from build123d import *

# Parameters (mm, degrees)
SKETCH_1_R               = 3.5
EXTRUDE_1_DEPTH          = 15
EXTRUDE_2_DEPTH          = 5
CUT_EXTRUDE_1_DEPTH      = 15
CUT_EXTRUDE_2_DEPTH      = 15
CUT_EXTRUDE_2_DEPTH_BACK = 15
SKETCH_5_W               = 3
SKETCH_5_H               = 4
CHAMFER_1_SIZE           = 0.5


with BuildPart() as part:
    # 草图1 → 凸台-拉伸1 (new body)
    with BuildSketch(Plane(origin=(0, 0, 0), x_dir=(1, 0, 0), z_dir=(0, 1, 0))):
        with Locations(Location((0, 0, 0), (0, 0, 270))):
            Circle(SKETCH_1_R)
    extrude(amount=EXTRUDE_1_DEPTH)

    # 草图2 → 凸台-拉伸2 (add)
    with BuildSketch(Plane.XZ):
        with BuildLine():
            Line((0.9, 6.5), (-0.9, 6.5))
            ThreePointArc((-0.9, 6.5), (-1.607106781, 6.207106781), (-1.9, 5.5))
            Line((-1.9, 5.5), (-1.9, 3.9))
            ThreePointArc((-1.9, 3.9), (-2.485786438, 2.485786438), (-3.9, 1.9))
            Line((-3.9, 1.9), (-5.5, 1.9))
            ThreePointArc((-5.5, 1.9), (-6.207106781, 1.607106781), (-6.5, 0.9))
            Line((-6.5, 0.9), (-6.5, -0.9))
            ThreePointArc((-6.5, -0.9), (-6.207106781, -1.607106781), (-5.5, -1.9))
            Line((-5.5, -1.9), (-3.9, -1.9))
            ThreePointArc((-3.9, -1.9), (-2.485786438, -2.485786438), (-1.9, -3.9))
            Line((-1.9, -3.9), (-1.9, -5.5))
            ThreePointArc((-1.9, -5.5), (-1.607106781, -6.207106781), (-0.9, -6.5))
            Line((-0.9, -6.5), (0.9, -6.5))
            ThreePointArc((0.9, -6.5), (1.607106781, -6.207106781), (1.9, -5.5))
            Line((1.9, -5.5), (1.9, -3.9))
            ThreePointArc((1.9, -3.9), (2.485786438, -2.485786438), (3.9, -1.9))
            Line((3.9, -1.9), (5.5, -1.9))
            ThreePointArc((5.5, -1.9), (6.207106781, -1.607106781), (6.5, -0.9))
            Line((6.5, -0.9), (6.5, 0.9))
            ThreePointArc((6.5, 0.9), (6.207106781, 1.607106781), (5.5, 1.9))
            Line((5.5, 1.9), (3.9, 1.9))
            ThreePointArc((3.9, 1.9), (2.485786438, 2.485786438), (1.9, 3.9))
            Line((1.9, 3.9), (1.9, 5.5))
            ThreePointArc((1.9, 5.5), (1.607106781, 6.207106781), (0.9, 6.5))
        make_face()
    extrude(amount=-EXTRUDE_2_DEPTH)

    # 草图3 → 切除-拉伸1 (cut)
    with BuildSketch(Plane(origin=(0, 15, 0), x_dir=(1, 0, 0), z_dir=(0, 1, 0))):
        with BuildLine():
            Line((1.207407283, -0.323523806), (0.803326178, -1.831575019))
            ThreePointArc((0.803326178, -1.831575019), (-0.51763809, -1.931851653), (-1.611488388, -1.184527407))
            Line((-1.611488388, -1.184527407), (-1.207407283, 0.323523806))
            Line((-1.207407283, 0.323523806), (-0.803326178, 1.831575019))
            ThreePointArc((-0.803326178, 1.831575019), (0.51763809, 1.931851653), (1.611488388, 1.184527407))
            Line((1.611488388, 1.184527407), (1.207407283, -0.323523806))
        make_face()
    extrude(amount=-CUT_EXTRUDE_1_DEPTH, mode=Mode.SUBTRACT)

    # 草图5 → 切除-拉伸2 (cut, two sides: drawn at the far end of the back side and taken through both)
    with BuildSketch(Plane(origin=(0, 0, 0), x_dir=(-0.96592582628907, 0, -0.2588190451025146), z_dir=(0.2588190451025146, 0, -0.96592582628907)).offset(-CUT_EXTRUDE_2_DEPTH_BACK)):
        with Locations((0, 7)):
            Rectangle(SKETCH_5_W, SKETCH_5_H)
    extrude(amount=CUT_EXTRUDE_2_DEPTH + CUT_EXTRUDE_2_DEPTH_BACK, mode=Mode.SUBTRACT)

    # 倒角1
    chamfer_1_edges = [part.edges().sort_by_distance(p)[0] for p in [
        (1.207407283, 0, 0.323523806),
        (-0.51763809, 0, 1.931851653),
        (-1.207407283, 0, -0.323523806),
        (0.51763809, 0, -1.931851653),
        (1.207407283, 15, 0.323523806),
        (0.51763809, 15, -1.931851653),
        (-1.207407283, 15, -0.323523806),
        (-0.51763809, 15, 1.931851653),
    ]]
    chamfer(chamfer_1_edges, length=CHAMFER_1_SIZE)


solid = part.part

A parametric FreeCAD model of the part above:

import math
import FreeCAD as App
import Part
import Sketcher
Q = App.Units.Quantity


def edges_at(feature, points):
    """Names of the edges that pass closest to the given points."""
    edges = feature.Shape.Edges
    near = lambda p: min(range(len(edges)), key=lambda i: edges[i].distToShape(Part.Vertex(*p))[0])
    return sorted({f"Edge{near(p) + 1}" for p in points})


def add_polygon(sketch, points):
    """Adds a closed chain of lines whose ends are joined by coincident constraints."""
    first, n = sketch.GeometryCount, len(points)
    for a, b in zip(points, points[1:] + points[:1]):
        sketch.addGeometry(Part.LineSegment(App.Vector(*a, 0), App.Vector(*b, 0)), False)
    for i in range(n):
        sketch.addConstraint(Sketcher.Constraint("Coincident", first + i, 2, first + (i + 1) % n, 1))

doc = App.newDocument("Part")
body = doc.addObject("PartDesign::Body", "Body")

sketch1 = doc.addObject("Sketcher::SketchObject", "Sketch")
body.addObject(sketch1)
sketch1.AttachmentSupport = (doc.XZ_Plane, [""])
sketch1.MapMode = "FlatFace"
sketch1.addGeometry(Part.Circle(App.Vector(0, 0, 0), App.Vector(0, 0, 1), 3.5), False)
sketch1.addConstraint(Sketcher.Constraint("Coincident", 0, 3, -1, 1))
sketch1.addConstraint(Sketcher.Constraint("Diameter", 0, Q("7 mm")))
pad1 = doc.addObject("PartDesign::Pad", "Pad")
body.addObject(pad1)
pad1.Profile = sketch1
pad1.Length = 15
pad1.Reversed = True

sketch2 = doc.addObject("Sketcher::SketchObject", "Sketch001")
body.addObject(sketch2)
sketch2.AttachmentSupport = (doc.XZ_Plane, [""])
sketch2.MapMode = "FlatFace"
sketch2.addGeometry(Part.LineSegment(App.Vector(0.9, 6.5, 0), App.Vector(-0.9, 6.5, 0)), False)
sketch2.addGeometry(Part.ArcOfCircle(Part.Circle(App.Vector(-0.9, 5.5, 0), App.Vector(0, 0, 1), 1), math.radians(90), math.radians(180)), False)
sketch2.addGeometry(Part.LineSegment(App.Vector(-1.9, 5.5, 0), App.Vector(-1.9, 3.9, 0)), False)
sketch2.addGeometry(Part.ArcOfCircle(Part.Circle(App.Vector(-3.9, 3.9, 0), App.Vector(0, 0, 1), 2), math.radians(-90), math.radians(0)), False)
sketch2.addGeometry(Part.LineSegment(App.Vector(-3.9, 1.9, 0), App.Vector(-5.5, 1.9, 0)), False)
sketch2.addGeometry(Part.ArcOfCircle(Part.Circle(App.Vector(-5.5, 0.9, 0), App.Vector(0, 0, 1), 1), math.radians(90), math.radians(180)), False)
sketch2.addGeometry(Part.LineSegment(App.Vector(-6.5, 0.9, 0), App.Vector(-6.5, -0.9, 0)), False)
sketch2.addGeometry(Part.ArcOfCircle(Part.Circle(App.Vector(-5.5, -0.9, 0), App.Vector(0, 0, 1), 1), math.radians(-180), math.radians(-90)), False)
sketch2.addGeometry(Part.LineSegment(App.Vector(-5.5, -1.9, 0), App.Vector(-3.9, -1.9, 0)), False)
sketch2.addGeometry(Part.ArcOfCircle(Part.Circle(App.Vector(-3.9, -3.9, 0), App.Vector(0, 0, 1), 2), math.radians(0), math.radians(90)), False)
sketch2.addGeometry(Part.LineSegment(App.Vector(-1.9, -3.9, 0), App.Vector(-1.9, -5.5, 0)), False)
sketch2.addGeometry(Part.ArcOfCircle(Part.Circle(App.Vector(-0.9, -5.5, 0), App.Vector(0, 0, 1), 1), math.radians(-180), math.radians(-90)), False)
sketch2.addGeometry(Part.LineSegment(App.Vector(-0.9, -6.5, 0), App.Vector(0.9, -6.5, 0)), False)
sketch2.addGeometry(Part.ArcOfCircle(Part.Circle(App.Vector(0.9, -5.5, 0), App.Vector(0, 0, 1), 1), math.radians(-90), math.radians(0)), False)
sketch2.addGeometry(Part.LineSegment(App.Vector(1.9, -5.5, 0), App.Vector(1.9, -3.9, 0)), False)
sketch2.addGeometry(Part.ArcOfCircle(Part.Circle(App.Vector(3.9, -3.9, 0), App.Vector(0, 0, 1), 2), math.radians(90), math.radians(180)), False)
sketch2.addGeometry(Part.LineSegment(App.Vector(3.9, -1.9, 0), App.Vector(5.5, -1.9, 0)), False)
sketch2.addGeometry(Part.ArcOfCircle(Part.Circle(App.Vector(5.5, -0.9, 0), App.Vector(0, 0, 1), 1), math.radians(-90), math.radians(0)), False)
sketch2.addGeometry(Part.LineSegment(App.Vector(6.5, -0.9, 0), App.Vector(6.5, 0.9, 0)), False)
sketch2.addGeometry(Part.ArcOfCircle(Part.Circle(App.Vector(5.5, 0.9, 0), App.Vector(0, 0, 1), 1), math.radians(0), math.radians(90)), False)
sketch2.addGeometry(Part.LineSegment(App.Vector(5.5, 1.9, 0), App.Vector(3.9, 1.9, 0)), False)
sketch2.addGeometry(Part.ArcOfCircle(Part.Circle(App.Vector(3.9, 3.9, 0), App.Vector(0, 0, 1), 2), math.radians(-180), math.radians(-90)), False)
sketch2.addGeometry(Part.LineSegment(App.Vector(1.9, 3.9, 0), App.Vector(1.9, 5.5, 0)), False)
sketch2.addGeometry(Part.ArcOfCircle(Part.Circle(App.Vector(0.9, 5.5, 0), App.Vector(0, 0, 1), 1), math.radians(0), math.radians(90)), False)
sketch2.addConstraint(Sketcher.Constraint("Tangent", 0, 2, 1, 1))
sketch2.addConstraint(Sketcher.Constraint("Tangent", 1, 2, 2, 1))
sketch2.addConstraint(Sketcher.Constraint("Tangent", 2, 2, 3, 2))
sketch2.addConstraint(Sketcher.Constraint("Tangent", 3, 1, 4, 1))
sketch2.addConstraint(Sketcher.Constraint("Tangent", 4, 2, 5, 1))
sketch2.addConstraint(Sketcher.Constraint("Tangent", 5, 2, 6, 1))
sketch2.addConstraint(Sketcher.Constraint("Tangent", 6, 2, 7, 1))
sketch2.addConstraint(Sketcher.Constraint("Tangent", 7, 2, 8, 1))
sketch2.addConstraint(Sketcher.Constraint("Tangent", 8, 2, 9, 2))
sketch2.addConstraint(Sketcher.Constraint("Tangent", 9, 1, 10, 1))
sketch2.addConstraint(Sketcher.Constraint("Tangent", 10, 2, 11, 1))
sketch2.addConstraint(Sketcher.Constraint("Tangent", 11, 2, 12, 1))
sketch2.addConstraint(Sketcher.Constraint("Tangent", 12, 2, 13, 1))
sketch2.addConstraint(Sketcher.Constraint("Tangent", 13, 2, 14, 1))
sketch2.addConstraint(Sketcher.Constraint("Tangent", 14, 2, 15, 2))
sketch2.addConstraint(Sketcher.Constraint("Tangent", 15, 1, 16, 1))
sketch2.addConstraint(Sketcher.Constraint("Tangent", 16, 2, 17, 1))
sketch2.addConstraint(Sketcher.Constraint("Tangent", 17, 2, 18, 1))
sketch2.addConstraint(Sketcher.Constraint("Tangent", 18, 2, 19, 1))
sketch2.addConstraint(Sketcher.Constraint("Tangent", 19, 2, 20, 1))
sketch2.addConstraint(Sketcher.Constraint("Tangent", 20, 2, 21, 2))
sketch2.addConstraint(Sketcher.Constraint("Tangent", 21, 1, 22, 1))
sketch2.addConstraint(Sketcher.Constraint("Tangent", 22, 2, 23, 1))
sketch2.addConstraint(Sketcher.Constraint("Tangent", 23, 2, 0, 1))
sketch2.addConstraint(Sketcher.Constraint("Horizontal", 0))
sketch2.addConstraint(Sketcher.Constraint("Vertical", 2))
sketch2.addConstraint(Sketcher.Constraint("Horizontal", 4))
sketch2.addConstraint(Sketcher.Constraint("Vertical", 6))
sketch2.addConstraint(Sketcher.Constraint("Horizontal", 8))
sketch2.addConstraint(Sketcher.Constraint("Vertical", 10))
sketch2.addConstraint(Sketcher.Constraint("Horizontal", 12))
sketch2.addConstraint(Sketcher.Constraint("Vertical", 14))
sketch2.addConstraint(Sketcher.Constraint("Horizontal", 16))
sketch2.addConstraint(Sketcher.Constraint("Vertical", 18))
sketch2.addConstraint(Sketcher.Constraint("Horizontal", 20))
sketch2.addConstraint(Sketcher.Constraint("Vertical", 22))
sketch2.addConstraint(Sketcher.Constraint("Equal", 1, 5))
sketch2.addConstraint(Sketcher.Constraint("Equal", 5, 7))
sketch2.addConstraint(Sketcher.Constraint("Equal", 3, 9))
sketch2.addConstraint(Sketcher.Constraint("Equal", 7, 11))
sketch2.addConstraint(Sketcher.Constraint("Equal", 11, 13))
sketch2.addConstraint(Sketcher.Constraint("Equal", 9, 15))
sketch2.addConstraint(Sketcher.Constraint("Equal", 13, 17))
sketch2.addConstraint(Sketcher.Constraint("Equal", 17, 19))
sketch2.addConstraint(Sketcher.Constraint("Equal", 15, 21))
sketch2.addConstraint(Sketcher.Constraint("Equal", 19, 23))
sketch2.addConstraint(Sketcher.Constraint("Symmetric", 1, 3, 13, 3, -1, 1))
sketch2.addConstraint(Sketcher.Constraint("Symmetric", 5, 3, 17, 3, -1, 1))
sketch2.addConstraint(Sketcher.Constraint("Symmetric", 9, 3, 21, 3, -1, 1))
sketch2.addConstraint(Sketcher.Constraint("Symmetric", 9, 3, 15, 3, -2))
sketch2.addConstraint(Sketcher.Constraint("Equal", 20, 2))
sketch2.addConstraint(Sketcher.Constraint("Equal", 12, 6))
sketch2.addConstraint(Sketcher.Constraint("Radius", 1, Q("1 mm")))
sketch2.addConstraint(Sketcher.Constraint("Radius", 3, Q("2 mm")))
sketch2.addConstraint(Sketcher.Constraint("DistanceX", 0, 2, 0, 1, Q("1.8 mm")))
sketch2.addConstraint(Sketcher.Constraint("DistanceX", 4, 2, 4, 1, Q("1.6 mm")))
pad2 = doc.addObject("PartDesign::Pad", "Pad001")
body.addObject(pad2)
pad2.Profile = sketch2
pad2.Length = 5
pad2.Reversed = True

sketch3 = doc.addObject("Sketcher::SketchObject", "Sketch002")
body.addObject(sketch3)
sketch3.AttachmentSupport = (doc.XZ_Plane, [""])
sketch3.MapMode = "FlatFace"
sketch3.AttachmentOffset = App.Placement(App.Vector(0, 0, -15), App.Rotation())
sketch3.addGeometry(Part.ArcOfCircle(Part.Circle(App.Vector(0, 0, 0), App.Vector(0, 0, 1), 2), math.radians(66), math.radians(144)), False)
sketch3.addGeometry(Part.LineSegment(App.Vector(0.8, 1.8, 0), App.Vector(1.6, -1.2, 0)), False)
sketch3.addGeometry(Part.ArcOfCircle(Part.Circle(App.Vector(0, 0, 0), App.Vector(0, 0, 1), 2), math.radians(-114), math.radians(-36)), False)
sketch3.addGeometry(Part.LineSegment(App.Vector(-0.8, -1.8, 0), App.Vector(-1.6, 1.2, 0)), False)
sketch3.addConstraint(Sketcher.Constraint("Coincident", 0, 1, 1, 1))
sketch3.addConstraint(Sketcher.Constraint("Coincident", 1, 2, 2, 2))
sketch3.addConstraint(Sketcher.Constraint("Coincident", 2, 1, 3, 1))
sketch3.addConstraint(Sketcher.Constraint("Coincident", 3, 2, 0, 2))
sketch3.addConstraint(Sketcher.Constraint("Coincident", 0, 3, -1, 1))
sketch3.addConstraint(Sketcher.Constraint("Coincident", 2, 3, -1, 1))
sketch3.addConstraint(Sketcher.Constraint("Equal", 0, 2))
sketch3.addConstraint(Sketcher.Constraint("Parallel", 1, 3))
sketch3.addConstraint(Sketcher.Constraint("Equal", 1, 3))
sketch3.addConstraint(Sketcher.Constraint("Radius", 0, Q("2 mm")))
sketch3.addConstraint(Sketcher.Constraint("Angle", 1, Q("-75 deg")))
sketch3.addConstraint(Sketcher.Constraint("Distance", 1, Q("3.122499 mm")))
pocket1 = doc.addObject("PartDesign::Pocket", "Pocket")
body.addObject(pocket1)
pocket1.Profile = sketch3
pocket1.Length = 15
pocket1.Reversed = True

sketch4 = doc.addObject("Sketcher::SketchObject", "Sketch003")
body.addObject(sketch4)
sketch4.Placement = App.Placement(App.Vector(0, 0, 0), App.Rotation(App.Vector(-0.965925826, 0, -0.258819045), App.Vector(0, 0.999999999, 0), App.Vector(0.258819045, 0, -0.965925826), "ZXY"))
add_polygon(sketch4, [(-1.5, 9), (-1.5, 5), (1.5, 5), (1.5, 9)])
sketch4.addConstraint(Sketcher.Constraint("Vertical", 0))
sketch4.addConstraint(Sketcher.Constraint("Horizontal", 1))
sketch4.addConstraint(Sketcher.Constraint("Vertical", 2))
sketch4.addConstraint(Sketcher.Constraint("Horizontal", 3))
sketch4.addConstraint(Sketcher.Constraint("DistanceX", 1, 1, 1, 2, Q("3 mm")))
sketch4.addConstraint(Sketcher.Constraint("DistanceY", 0, 2, 0, 1, Q("4 mm")))
sketch4.addConstraint(Sketcher.Constraint("DistanceY", -1, 1, 0, 2, Q("5 mm")))
sketch4.addConstraint(Sketcher.Constraint("DistanceX", 0, 2, -1, 1, Q("1.5 mm")))
pocket2 = doc.addObject("PartDesign::Pocket", "Pocket001")
body.addObject(pocket2)
pocket2.Profile = sketch4
pocket2.Type = "ThroughAll"
pocket2.Midplane = True
doc.recompute()

chamfer = doc.addObject("PartDesign::Chamfer", "Chamfer")
body.addObject(chamfer)
chamfer.Base = (pocket2, edges_at(pocket2, [
    (1.207, 0, 0.324),
    (-0.518, 0, 1.932),
    (-1.207, 0, -0.324),
    (0.518, 0, -1.932),
    (1.207, 15, 0.324),
    (0.518, 15, -1.932),
    (-1.207, 15, -0.324),
    (-0.518, 15, 1.932),
]))
chamfer.Size = 0.5

doc.recompute()
